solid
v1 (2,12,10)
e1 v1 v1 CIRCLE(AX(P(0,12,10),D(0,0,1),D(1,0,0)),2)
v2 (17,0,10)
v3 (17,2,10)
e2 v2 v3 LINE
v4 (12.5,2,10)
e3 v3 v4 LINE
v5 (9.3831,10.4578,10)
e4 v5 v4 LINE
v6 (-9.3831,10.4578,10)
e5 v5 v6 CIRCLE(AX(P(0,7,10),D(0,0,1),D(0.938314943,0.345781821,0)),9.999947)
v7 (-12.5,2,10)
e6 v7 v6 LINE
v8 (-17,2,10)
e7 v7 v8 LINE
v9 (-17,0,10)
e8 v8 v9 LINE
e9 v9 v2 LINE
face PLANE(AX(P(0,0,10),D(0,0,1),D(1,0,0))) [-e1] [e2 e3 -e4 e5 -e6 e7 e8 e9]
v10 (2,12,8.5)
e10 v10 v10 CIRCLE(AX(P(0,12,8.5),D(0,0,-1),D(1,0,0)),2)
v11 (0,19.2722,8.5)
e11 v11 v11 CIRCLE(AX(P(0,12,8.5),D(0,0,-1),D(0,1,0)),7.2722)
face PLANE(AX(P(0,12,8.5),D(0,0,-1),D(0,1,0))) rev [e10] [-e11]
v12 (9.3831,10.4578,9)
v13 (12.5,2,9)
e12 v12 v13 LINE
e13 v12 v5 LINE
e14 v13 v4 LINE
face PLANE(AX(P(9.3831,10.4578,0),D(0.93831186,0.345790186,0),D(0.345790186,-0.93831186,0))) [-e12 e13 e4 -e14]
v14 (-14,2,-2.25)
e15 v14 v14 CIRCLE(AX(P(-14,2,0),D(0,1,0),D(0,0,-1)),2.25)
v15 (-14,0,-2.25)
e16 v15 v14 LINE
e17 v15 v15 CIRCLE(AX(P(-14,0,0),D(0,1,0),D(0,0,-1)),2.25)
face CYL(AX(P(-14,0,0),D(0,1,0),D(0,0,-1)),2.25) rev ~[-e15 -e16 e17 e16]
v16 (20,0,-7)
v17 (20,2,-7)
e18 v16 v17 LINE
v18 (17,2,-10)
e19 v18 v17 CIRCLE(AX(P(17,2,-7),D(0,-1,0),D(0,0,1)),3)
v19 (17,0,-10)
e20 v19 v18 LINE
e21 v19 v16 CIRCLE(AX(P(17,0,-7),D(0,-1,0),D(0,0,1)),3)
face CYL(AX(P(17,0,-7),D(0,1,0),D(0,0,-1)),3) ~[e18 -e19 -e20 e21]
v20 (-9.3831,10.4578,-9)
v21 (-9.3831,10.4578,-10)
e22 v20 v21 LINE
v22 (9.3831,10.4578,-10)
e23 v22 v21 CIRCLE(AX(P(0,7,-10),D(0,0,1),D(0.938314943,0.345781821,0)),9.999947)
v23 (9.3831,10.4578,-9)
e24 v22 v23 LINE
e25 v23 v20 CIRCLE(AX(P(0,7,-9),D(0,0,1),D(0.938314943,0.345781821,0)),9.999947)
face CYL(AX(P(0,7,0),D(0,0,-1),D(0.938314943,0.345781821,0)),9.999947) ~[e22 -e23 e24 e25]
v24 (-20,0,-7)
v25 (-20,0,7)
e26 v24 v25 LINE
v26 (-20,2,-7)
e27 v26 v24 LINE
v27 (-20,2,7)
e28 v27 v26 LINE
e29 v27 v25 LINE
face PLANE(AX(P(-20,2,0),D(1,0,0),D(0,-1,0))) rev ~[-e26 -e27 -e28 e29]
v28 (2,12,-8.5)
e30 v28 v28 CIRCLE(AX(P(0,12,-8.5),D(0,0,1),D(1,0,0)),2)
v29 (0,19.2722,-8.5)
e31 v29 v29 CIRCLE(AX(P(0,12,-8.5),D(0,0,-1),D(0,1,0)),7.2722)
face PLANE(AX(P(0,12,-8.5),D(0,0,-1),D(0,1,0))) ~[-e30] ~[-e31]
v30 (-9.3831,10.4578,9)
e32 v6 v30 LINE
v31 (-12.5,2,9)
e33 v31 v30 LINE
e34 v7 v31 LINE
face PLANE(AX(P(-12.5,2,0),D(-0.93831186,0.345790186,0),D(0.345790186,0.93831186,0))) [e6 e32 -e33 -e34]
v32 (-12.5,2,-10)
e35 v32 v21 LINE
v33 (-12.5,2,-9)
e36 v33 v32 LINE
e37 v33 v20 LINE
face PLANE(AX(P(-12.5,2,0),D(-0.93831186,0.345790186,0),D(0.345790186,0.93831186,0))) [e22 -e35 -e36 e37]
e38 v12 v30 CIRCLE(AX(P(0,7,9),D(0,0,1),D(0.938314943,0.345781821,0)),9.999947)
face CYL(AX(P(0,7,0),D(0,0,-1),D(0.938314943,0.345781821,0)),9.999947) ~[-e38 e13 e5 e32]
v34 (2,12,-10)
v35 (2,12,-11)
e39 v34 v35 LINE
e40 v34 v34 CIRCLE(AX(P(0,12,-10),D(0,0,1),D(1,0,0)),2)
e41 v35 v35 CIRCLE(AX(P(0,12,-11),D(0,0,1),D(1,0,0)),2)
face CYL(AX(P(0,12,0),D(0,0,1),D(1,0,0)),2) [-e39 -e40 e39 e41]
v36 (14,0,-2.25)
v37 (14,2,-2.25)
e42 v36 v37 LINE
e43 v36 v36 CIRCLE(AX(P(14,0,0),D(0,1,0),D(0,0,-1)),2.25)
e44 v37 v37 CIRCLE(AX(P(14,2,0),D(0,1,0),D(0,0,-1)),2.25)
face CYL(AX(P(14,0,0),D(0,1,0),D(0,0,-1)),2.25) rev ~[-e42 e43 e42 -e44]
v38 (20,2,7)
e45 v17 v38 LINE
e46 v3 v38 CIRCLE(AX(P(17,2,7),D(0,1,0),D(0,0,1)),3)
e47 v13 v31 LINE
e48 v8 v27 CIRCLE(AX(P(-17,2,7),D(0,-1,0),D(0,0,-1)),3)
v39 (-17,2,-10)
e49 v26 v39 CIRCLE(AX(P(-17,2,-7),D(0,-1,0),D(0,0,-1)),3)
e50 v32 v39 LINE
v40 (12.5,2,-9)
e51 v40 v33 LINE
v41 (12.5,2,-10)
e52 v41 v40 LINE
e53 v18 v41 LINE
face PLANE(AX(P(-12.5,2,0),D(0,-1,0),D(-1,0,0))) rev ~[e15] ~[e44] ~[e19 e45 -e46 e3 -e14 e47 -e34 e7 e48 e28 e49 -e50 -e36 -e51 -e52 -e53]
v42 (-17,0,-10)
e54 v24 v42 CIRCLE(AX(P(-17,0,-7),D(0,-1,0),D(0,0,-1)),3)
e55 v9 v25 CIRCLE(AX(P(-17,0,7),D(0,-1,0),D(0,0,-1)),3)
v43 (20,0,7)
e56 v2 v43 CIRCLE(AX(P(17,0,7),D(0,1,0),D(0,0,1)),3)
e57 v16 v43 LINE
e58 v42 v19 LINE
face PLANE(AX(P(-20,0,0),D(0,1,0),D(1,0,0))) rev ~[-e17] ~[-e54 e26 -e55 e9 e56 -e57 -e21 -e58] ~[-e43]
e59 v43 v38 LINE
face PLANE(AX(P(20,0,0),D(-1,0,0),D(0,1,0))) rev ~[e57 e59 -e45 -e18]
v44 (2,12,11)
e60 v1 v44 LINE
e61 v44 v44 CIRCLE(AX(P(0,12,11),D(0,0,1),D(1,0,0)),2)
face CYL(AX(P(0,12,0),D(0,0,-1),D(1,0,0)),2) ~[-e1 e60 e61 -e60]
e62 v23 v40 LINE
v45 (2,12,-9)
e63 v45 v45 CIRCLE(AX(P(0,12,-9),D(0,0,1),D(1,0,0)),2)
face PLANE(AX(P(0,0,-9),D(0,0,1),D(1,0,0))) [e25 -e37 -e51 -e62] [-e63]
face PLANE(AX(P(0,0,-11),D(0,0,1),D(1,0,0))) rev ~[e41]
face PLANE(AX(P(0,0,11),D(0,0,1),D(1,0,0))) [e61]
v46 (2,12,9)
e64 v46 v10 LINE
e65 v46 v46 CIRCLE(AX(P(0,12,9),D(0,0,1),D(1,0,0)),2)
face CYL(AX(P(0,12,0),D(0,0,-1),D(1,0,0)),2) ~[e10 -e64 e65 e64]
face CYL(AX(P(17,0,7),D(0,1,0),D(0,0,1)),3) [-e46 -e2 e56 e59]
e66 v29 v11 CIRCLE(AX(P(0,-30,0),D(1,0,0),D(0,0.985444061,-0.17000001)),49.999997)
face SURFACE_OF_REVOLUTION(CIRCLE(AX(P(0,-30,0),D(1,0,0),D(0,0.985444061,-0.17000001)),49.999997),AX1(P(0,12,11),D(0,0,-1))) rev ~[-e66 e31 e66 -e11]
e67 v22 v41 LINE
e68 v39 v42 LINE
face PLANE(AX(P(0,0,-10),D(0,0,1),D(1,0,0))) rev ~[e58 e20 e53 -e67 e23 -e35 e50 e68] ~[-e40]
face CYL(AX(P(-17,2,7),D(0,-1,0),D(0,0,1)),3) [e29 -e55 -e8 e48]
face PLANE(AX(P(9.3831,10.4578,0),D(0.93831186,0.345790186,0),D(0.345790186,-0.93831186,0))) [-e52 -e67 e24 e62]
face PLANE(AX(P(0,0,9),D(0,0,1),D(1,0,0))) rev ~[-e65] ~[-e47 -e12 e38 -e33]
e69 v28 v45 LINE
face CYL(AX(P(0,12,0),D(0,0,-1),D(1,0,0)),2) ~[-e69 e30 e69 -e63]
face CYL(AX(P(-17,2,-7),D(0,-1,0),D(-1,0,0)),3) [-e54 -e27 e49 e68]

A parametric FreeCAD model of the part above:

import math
import FreeCAD as App
import Part
import Sketcher

V = App.Vector
Q = App.Units.Quantity


def edges_at(feature, points):
    """Names of the edges that pass closest to the given points."""
    edges = feature.Shape.Edges
    near = lambda p: min(range(len(edges)), key=lambda i: edges[i].distToShape(Part.Vertex(*p))[0])
    return sorted({f"Edge{near(p) + 1}" for p in points})

doc = App.newDocument("Part")
body = doc.addObject("PartDesign::Body", "Body")

# Sketch on XY plane
sketch1 = body.newObject("Sketcher::SketchObject", "Sketch")
sketch1.AttachmentSupport = (doc.getObject("XY_Plane"), [""])
sketch1.MapMode = "FlatFace"
sketch1.addGeometry(Part.LineSegment(V(-20, 2, 0), V(-20, 0, 0)), False)
sketch1.addGeometry(Part.LineSegment(V(-20, 0, 0), V(20, 0, 0)), False)
sketch1.addGeometry(Part.LineSegment(V(20, 0, 0), V(20, 2, 0)), False)
sketch1.addGeometry(Part.LineSegment(V(20, 2, 0), V(12.5, 2, 0)), False)
sketch1.addGeometry(Part.LineSegment(V(12.5, 2, 0), V(9.4, 10.5, 0)), False)
sketch1.addGeometry(Part.ArcOfCircle(Part.Circle(V(0, 7, 0), V(0, 0, 1), 10), math.radians(20), math.radians(160)), False)
sketch1.addGeometry(Part.LineSegment(V(-9.4, 10.5, 0), V(-12.5, 2, 0)), False)
sketch1.addGeometry(Part.LineSegment(V(-12.5, 2, 0), V(-20, 2, 0)), False)
sketch1.addGeometry(Part.Circle(V(0, 12, 0), V(0, 0, 1), 2), False)
sketch1.addConstraint(Sketcher.Constraint("Coincident", 0, 2, 1, 1))
sketch1.addConstraint(Sketcher.Constraint("Coincident", 1, 2, 2, 1))
sketch1.addConstraint(Sketcher.Constraint("Coincident", 2, 2, 3, 1))
sketch1.addConstraint(Sketcher.Constraint("Coincident", 3, 2, 4, 1))
sketch1.addConstraint(Sketcher.Constraint("Tangent", 4, 2, 5, 1))
sketch1.addConstraint(Sketcher.Constraint("Tangent", 5, 2, 6, 1))
sketch1.addConstraint(Sketcher.Constraint("Coincident", 6, 2, 7, 1))
sketch1.addConstraint(Sketcher.Constraint("Coincident", 7, 2, 0, 1))
sketch1.addConstraint(Sketcher.Constraint("Vertical", 0))
sketch1.addConstraint(Sketcher.Constraint("Horizontal", 1))
sketch1.addConstraint(Sketcher.Constraint("Vertical", 2))
sketch1.addConstraint(Sketcher.Constraint("Horizontal", 3))
sketch1.addConstraint(Sketcher.Constraint("Horizontal", 7))
sketch1.addConstraint(Sketcher.Constraint("Symmetric", 0, 2, 1, 2, -1, 1))
sketch1.addConstraint(Sketcher.Constraint("Symmetric", 4, 2, 5, 2, -2))
sketch1.addConstraint(Sketcher.Constraint("PointOnObject", 8, 3, -2))
sketch1.addConstraint(Sketcher.Constraint("Horizontal", 3, 2, 6, 2))
sketch1.addConstraint(Sketcher.Constraint("Diameter", 8, Q("4 mm")))
sketch1.addConstraint(Sketcher.Constraint("Radius", 5, Q("10 mm")))
sketch1.addConstraint(Sketcher.Constraint("DistanceX", 1, 1, 1, 2, Q("40 mm")))
sketch1.addConstraint(Sketcher.Constraint("DistanceY", 0, 2, 0, 1, Q("2 mm")))
sketch1.addConstraint(Sketcher.Constraint("DistanceY", -1, 1, 8, 3, Q("12 mm")))
sketch1.addConstraint(Sketcher.Constraint("DistanceY", 5, 3, 8, 3, Q("5 mm")))
sketch1.addConstraint(Sketcher.Constraint("DistanceX", 3, 2, 3, 1, Q("7.5 mm")))
pad1 = body.newObject("PartDesign::Pad", "Pad")
pad1.Profile = sketch1
pad1.Length = 20
pad1.Midplane = True

# Sketch on XY plane
sketch2 = body.newObject("Sketcher::SketchObject", "Sketch001")
sketch2.AttachmentSupport = (doc.getObject("XY_Plane"), [""])
sketch2.MapMode = "FlatFace"
sketch2.addGeometry(Part.Circle(V(0, 12, 0), V(0, 0, 1), 2), False)
sketch2.addConstraint(Sketcher.Constraint("PointOnObject", 0, 3, -2))
sketch2.addConstraint(Sketcher.Constraint("Diameter", 0, Q("4 mm")))
sketch2.addConstraint(Sketcher.Constraint("DistanceY", -1, 1, 0, 3, Q("12 mm")))
pad2 = body.newObject("PartDesign::Pad", "Pad001")
pad2.Profile = sketch2
pad2.Length = 22
pad2.Midplane = True

# Sketch on XY plane
sketch3 = body.newObject("Sketcher::SketchObject", "Sketch002")
sketch3.AttachmentSupport = (doc.getObject("XY_Plane"), [""])
sketch3.MapMode = "FlatFace"
sketch3.addGeometry(Part.LineSegment(V(-9.4, 10.5, 0), V(-12.5, 2, 0)), False)
sketch3.addGeometry(Part.LineSegment(V(-12.5, 2, 0), V(12.5, 2, 0)), False)
sketch3.addGeometry(Part.LineSegment(V(12.5, 2, 0), V(9.4, 10.5, 0)), False)
sketch3.addGeometry(Part.ArcOfCircle(Part.Circle(V(0, 7, 0), V(0, 0, 1), 10), math.radians(20), math.radians(160)), False)
sketch3.addGeometry(Part.Circle(V(0, 12, 0), V(0, 0, 1), 2), False)
sketch3.addConstraint(Sketcher.Constraint("Coincident", 0, 2, 1, 1))
sketch3.addConstraint(Sketcher.Constraint("Coincident", 1, 2, 2, 1))
sketch3.addConstraint(Sketcher.Constraint("Tangent", 2, 2, 3, 1))
sketch3.addConstraint(Sketcher.Constraint("Tangent", 3, 2, 0, 1))
sketch3.addConstraint(Sketcher.Constraint("Horizontal", 1))
sketch3.addConstraint(Sketcher.Constraint("Symmetric", 2, 2, 3, 2, -2))
sketch3.addConstraint(Sketcher.Constraint("PointOnObject", 4, 3, -2))
sketch3.addConstraint(Sketcher.Constraint("Diameter", 4, Q("4 mm")))
sketch3.addConstraint(Sketcher.Constraint("Radius", 3, Q("10 mm")))
sketch3.addConstraint(Sketcher.Constraint("DistanceX", 1, 1, 1, 2, Q("25 mm")))
sketch3.addConstraint(Sketcher.Constraint("DistanceY", -1, 1, 4, 3, Q("12 mm")))
sketch3.addConstraint(Sketcher.Constraint("DistanceY", -1, 1, 0, 2, Q("2 mm")))
sketch3.addConstraint(Sketcher.Constraint("DistanceY", 3, 3, 4, 3, Q("5 mm")))
pocket1 = body.newObject("PartDesign::Pocket", "Pocket")
pocket1.Profile = sketch3
pocket1.Length = 18
pocket1.Midplane = True

# Sketch on YZ plane
sketch4 = body.newObject("Sketcher::SketchObject", "Sketch003")
sketch4.AttachmentSupport = (doc.getObject("YZ_Plane"), [""])
sketch4.MapMode = "FlatFace"
sketch4.addGeometry(Part.LineSegment(V(14, 8, 0), V(14, -8, 0)), False)
sketch4.addGeometry(Part.LineSegment(V(14, -8, 0), V(19, -8, 0)), False)
sketch4.addGeometry(Part.ArcOfCircle(Part.Circle(V(-30, 0, 0), V(0, 0, 1), 50), math.radians(-9.79), math.radians(9.79)), False)
sketch4.addGeometry(Part.LineSegment(V(19, 8, 0), V(14, 8, 0)), False)
sketch4.addGeometry(Part.LineSegment(V(12, 8, 0), V(12, -8, 0)), True)  # axis
sketch4.addConstraint(Sketcher.Constraint("Coincident", 0, 2, 1, 1))
sketch4.addConstraint(Sketcher.Constraint("Coincident", 1, 2, 2, 1))
sketch4.addConstraint(Sketcher.Constraint("Coincident", 2, 2, 3, 1))
sketch4.addConstraint(Sketcher.Constraint("Coincident", 3, 2, 0, 1))
sketch4.addConstraint(Sketcher.Constraint("Vertical", 0))
sketch4.addConstraint(Sketcher.Constraint("Horizontal", 1))
sketch4.addConstraint(Sketcher.Constraint("Horizontal", 3))
sketch4.addConstraint(Sketcher.Constraint("Vertical", 4))
sketch4.addConstraint(Sketcher.Constraint("Symmetric", 1, 2, 2, 2, -1))
sketch4.addConstraint(Sketcher.Constraint("Horizontal", 3, 2, 4, 1))
sketch4.addConstraint(Sketcher.Constraint("Horizontal", 1, 2, 4, 2))
sketch4.addConstraint(Sketcher.Constraint("Radius", 2, Q("50 mm")))
sketch4.addConstraint(Sketcher.Constraint("DistanceY", 0, 2, 0, 1, Q("17 mm")))
sketch4.addConstraint(Sketcher.Constraint("DistanceX", 2, 3, -1, 1, Q("30 mm")))
sketch4.addConstraint(Sketcher.Constraint("DistanceX", -1, 1, 0, 2, Q("14 mm")))
sketch4.addConstraint(Sketcher.Constraint("DistanceX", -1, 1, 4, 1, Q("12 mm")))
revolution = body.newObject("PartDesign::Revolution", "Revolution")
revolution.Profile = sketch4
revolution.ReferenceAxis = (sketch4, ["Axis0"])
revolution.Angle = 360
doc.recompute()

fillet = body.newObject("PartDesign::Fillet", "Fillet")
fillet.Base = (revolution, edges_at(revolution, [
    (-20, 1, -10),
    (-20, 1, 10),
    (20, 1, 10),
    (20, 1, -10),
]))
fillet.Radius = 3

# Sketch on XZ plane
sketch5 = body.newObject("Sketcher::SketchObject", "Sketch004")
sketch5.AttachmentSupport = (doc.getObject("XZ_Plane"), [""])
sketch5.MapMode = "FlatFace"
sketch5.addGeometry(Part.Circle(V(-14, 0, 0), V(0, 0, 1), 2.2), False)
sketch5.addGeometry(Part.Circle(V(14, 0, 0), V(0, 0, 1), 2.2), False)
sketch5.addConstraint(Sketcher.Constraint("Equal", 0, 1))
sketch5.addConstraint(Sketcher.Constraint("Symmetric", 0, 3, 1, 3, -1, 1))
sketch5.addConstraint(Sketcher.Constraint("PointOnObject", 0, 3, -1))
sketch5.addConstraint(Sketcher.Constraint("Diameter", 0, Q("4.5 mm")))
sketch5.addConstraint(Sketcher.Constraint("DistanceX", 0, 3, -1, 1, Q("14 mm")))
doc.recompute()
hole = body.newObject("PartDesign::Hole", "Hole")
hole.Profile = sketch5
hole.ThreadType = "None"
hole.Diameter = 4.5
hole.DepthType = "ThroughAll"

doc.recompute()
